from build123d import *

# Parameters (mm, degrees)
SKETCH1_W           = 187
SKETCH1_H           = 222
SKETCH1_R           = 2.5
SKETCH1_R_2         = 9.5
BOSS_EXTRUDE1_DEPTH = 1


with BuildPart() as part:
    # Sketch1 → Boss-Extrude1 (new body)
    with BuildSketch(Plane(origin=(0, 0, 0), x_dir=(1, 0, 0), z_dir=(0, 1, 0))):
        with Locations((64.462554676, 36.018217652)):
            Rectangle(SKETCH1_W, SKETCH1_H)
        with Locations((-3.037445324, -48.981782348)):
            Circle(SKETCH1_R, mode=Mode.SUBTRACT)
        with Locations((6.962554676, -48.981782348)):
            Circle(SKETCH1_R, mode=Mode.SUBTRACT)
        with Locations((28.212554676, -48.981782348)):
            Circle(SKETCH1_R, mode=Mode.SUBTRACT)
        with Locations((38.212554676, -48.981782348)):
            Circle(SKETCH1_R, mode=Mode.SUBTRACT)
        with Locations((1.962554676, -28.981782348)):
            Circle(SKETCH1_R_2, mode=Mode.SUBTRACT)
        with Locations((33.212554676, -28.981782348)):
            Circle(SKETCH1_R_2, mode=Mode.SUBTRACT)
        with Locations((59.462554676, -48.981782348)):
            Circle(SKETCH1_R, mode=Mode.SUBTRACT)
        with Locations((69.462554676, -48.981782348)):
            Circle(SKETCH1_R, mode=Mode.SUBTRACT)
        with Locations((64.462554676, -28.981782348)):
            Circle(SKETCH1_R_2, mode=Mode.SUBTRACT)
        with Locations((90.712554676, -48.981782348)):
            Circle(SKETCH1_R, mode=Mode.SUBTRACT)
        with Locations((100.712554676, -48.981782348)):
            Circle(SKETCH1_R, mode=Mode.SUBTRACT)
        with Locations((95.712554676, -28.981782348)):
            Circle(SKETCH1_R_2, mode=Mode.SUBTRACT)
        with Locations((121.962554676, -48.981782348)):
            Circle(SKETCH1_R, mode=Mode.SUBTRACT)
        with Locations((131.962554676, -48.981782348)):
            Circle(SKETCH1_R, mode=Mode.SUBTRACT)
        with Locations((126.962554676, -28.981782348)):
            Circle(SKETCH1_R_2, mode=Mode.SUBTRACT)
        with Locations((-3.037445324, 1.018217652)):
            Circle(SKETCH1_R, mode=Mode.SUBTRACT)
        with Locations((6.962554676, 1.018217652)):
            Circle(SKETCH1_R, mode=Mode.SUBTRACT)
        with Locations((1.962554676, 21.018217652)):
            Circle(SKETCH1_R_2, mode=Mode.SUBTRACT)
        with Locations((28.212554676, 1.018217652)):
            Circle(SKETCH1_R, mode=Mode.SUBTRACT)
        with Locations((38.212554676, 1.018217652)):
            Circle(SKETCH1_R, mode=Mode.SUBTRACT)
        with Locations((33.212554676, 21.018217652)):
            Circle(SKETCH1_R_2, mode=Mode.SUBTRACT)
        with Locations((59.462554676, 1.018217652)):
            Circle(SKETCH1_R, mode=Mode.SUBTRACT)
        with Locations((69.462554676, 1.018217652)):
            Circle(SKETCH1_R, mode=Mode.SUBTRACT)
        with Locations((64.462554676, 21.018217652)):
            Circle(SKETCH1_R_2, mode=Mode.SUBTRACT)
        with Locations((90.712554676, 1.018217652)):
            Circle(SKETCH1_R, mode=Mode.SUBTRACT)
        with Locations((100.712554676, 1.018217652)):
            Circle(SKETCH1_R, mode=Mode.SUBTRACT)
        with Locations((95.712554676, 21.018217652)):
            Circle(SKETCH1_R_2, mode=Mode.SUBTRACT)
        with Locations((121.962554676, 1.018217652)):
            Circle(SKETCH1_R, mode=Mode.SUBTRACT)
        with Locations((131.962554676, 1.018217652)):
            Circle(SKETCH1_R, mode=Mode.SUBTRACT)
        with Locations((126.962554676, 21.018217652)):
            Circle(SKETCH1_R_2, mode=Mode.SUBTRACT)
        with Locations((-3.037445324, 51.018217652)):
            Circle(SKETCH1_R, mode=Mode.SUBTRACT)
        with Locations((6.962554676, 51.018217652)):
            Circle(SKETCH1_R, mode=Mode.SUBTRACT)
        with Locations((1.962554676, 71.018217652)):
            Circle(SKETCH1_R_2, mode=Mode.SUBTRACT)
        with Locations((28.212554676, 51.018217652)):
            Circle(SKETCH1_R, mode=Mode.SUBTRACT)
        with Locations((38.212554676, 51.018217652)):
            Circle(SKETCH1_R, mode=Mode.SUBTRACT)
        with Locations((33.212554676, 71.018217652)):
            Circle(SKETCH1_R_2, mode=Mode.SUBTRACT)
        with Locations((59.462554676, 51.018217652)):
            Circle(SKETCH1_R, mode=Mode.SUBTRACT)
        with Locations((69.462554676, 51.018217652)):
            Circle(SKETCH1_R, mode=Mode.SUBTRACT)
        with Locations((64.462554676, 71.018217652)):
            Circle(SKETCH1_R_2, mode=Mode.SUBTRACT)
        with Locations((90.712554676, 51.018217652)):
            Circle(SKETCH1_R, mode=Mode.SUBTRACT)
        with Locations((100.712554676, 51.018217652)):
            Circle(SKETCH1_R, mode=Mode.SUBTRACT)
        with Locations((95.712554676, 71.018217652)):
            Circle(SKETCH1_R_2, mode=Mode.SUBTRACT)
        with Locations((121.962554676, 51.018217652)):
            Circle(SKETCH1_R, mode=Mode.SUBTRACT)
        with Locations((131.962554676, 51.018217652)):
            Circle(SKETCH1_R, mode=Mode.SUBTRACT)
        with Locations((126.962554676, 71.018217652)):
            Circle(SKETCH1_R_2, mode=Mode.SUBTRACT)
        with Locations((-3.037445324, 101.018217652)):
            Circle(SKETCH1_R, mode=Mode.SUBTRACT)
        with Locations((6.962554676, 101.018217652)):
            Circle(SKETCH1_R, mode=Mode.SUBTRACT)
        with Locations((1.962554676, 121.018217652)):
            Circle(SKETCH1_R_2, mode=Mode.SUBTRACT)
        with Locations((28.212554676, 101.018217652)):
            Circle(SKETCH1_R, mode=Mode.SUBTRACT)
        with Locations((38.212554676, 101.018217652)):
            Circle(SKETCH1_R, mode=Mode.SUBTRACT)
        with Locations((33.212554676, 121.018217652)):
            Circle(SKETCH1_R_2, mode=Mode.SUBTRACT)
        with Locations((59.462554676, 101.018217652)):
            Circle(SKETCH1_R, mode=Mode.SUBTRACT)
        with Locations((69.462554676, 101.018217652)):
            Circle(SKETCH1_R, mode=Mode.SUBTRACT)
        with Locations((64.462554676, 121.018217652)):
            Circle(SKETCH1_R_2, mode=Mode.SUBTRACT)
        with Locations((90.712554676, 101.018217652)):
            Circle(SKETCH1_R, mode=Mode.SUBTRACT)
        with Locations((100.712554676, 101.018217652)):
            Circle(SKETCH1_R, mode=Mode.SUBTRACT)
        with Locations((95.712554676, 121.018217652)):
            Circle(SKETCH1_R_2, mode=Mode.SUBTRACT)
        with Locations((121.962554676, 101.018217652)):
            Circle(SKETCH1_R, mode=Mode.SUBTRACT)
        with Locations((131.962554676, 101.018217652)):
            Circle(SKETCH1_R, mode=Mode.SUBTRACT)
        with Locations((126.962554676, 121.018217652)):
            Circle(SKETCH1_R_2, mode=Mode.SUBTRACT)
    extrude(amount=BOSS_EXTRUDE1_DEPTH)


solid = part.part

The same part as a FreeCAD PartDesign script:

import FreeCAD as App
import Part
import Sketcher

V = App.Vector
Q = App.Units.Quantity

doc = App.newDocument("Part")
params = doc.addObject("Spreadsheet::Sheet", "Params")
for row, (alias, value) in enumerate([
    ("sketch1_diameter", "5 mm"),
    ("sketch1_diameter2", "19 mm"),
    ("sketch1_width", "187 mm"),
    ("sketch1_height", "222 mm"),
    ("pad1_length", "1 mm"),
], start=1):
    params.set(f"A{row}", alias)
    params.set(f"B{row}", "=" + value)
    params.setAlias(f"B{row}", alias)

body = doc.addObject("PartDesign::Body", "Body")

sketch1 = body.newObject("Sketcher::SketchObject", "Sketch")
sketch1.AttachmentSupport = (doc.getObject("XZ_Plane"), [""])
sketch1.MapMode = "FlatFace"
sketch1.addGeometry([
    Part.LineSegment(V(-29.037445, -147.018218, 0), V(-29.037445, 74.981782, 0)),
    Part.LineSegment(V(-29.037445, 74.981782, 0), V(157.962555, 74.981782, 0)),
    Part.LineSegment(V(157.962555, 74.981782, 0), V(157.962555, -147.018218, 0)),
    Part.LineSegment(V(157.962555, -147.018218, 0), V(-29.037445, -147.018218, 0)),
    Part.Circle(V(-3.037445, 48.981782, 0), V(0, 0, 1), 2.5),
    Part.Circle(V(6.962555, 48.981782, 0), V(0, 0, 1), 2.5),
    Part.Circle(V(1.962555, 28.981782, 0), V(0, 0, 1), 9.5),
    Part.Circle(V(28.212555, 48.981782, 0), V(0, 0, 1), 2.5),
    Part.Circle(V(38.212555, 48.981782, 0), V(0, 0, 1), 2.5),
    Part.Circle(V(33.212555, 28.981782, 0), V(0, 0, 1), 9.5),
    Part.Circle(V(59.462555, 48.981782, 0), V(0, 0, 1), 2.5),
    Part.Circle(V(-3.037445, -1.018218, 0), V(0, 0, 1), 2.5),
    Part.Circle(V(6.962555, -1.018218, 0), V(0, 0, 1), 2.5),
    Part.Circle(V(28.212555, -1.018218, 0), V(0, 0, 1), 2.5),
    Part.Circle(V(1.962555, -21.018218, 0), V(0, 0, 1), 9.5),
    Part.Circle(V(38.212555, -1.018218, 0), V(0, 0, 1), 2.5),
    Part.Circle(V(59.462555, -1.018218, 0), V(0, 0, 1), 2.5),
    Part.Circle(V(33.212555, -21.018218, 0), V(0, 0, 1), 9.5),
    Part.Circle(V(69.462555, 48.981782, 0), V(0, 0, 1), 2.5),
    Part.Circle(V(64.462555, 28.981782, 0), V(0, 0, 1), 9.5),
    Part.Circle(V(90.712555, 48.981782, 0), V(0, 0, 1), 2.5),
    Part.Circle(V(95.712555, 28.981782, 0), V(0, 0, 1), 9.5),
    Part.Circle(V(100.712555, 48.981782, 0), V(0, 0, 1), 2.5),
    Part.Circle(V(121.962555, 48.981782, 0), V(0, 0, 1), 2.5),
    Part.Circle(V(131.962555, 48.981782, 0), V(0, 0, 1), 2.5),
    Part.Circle(V(126.962555, 28.981782, 0), V(0, 0, 1), 9.5),
    Part.Circle(V(69.462555, -1.018218, 0), V(0, 0, 1), 2.5),
    Part.Circle(V(90.712555, -1.018218, 0), V(0, 0, 1), 2.5),
    Part.Circle(V(64.462555, -21.018218, 0), V(0, 0, 1), 9.5),
    Part.Circle(V(95.712555, -21.018218, 0), V(0, 0, 1), 9.5),
    Part.Circle(V(100.712555, -1.018218, 0), V(0, 0, 1), 2.5),
    Part.Circle(V(121.962555, -1.018218, 0), V(0, 0, 1), 2.5),
    Part.Circle(V(131.962555, -1.018218, 0), V(0, 0, 1), 2.5),
    Part.Circle(V(126.962555, -21.018218, 0), V(0, 0, 1), 9.5),
    Part.Circle(V(-3.037445, -51.018218, 0), V(0, 0, 1), 2.5),
    Part.Circle(V(6.962555, -51.018218, 0), V(0, 0, 1), 2.5),
    Part.Circle(V(28.212555, -51.018218, 0), V(0, 0, 1), 2.5),
    Part.Circle(V(1.962555, -71.018218, 0), V(0, 0, 1), 9.5),
    Part.Circle(V(38.212555, -51.018218, 0), V(0, 0, 1), 2.5),
    Part.Circle(V(59.462555, -51.018218, 0), V(0, 0, 1), 2.5),
    Part.Circle(V(33.212555, -71.018218, 0), V(0, 0, 1), 9.5),
    Part.Circle(V(-3.037445, -101.018218, 0), V(0, 0, 1), 2.5),
    Part.Circle(V(6.962555, -101.018218, 0), V(0, 0, 1), 2.5),
    Part.Circle(V(28.212555, -101.018218, 0), V(0, 0, 1), 2.5),
    Part.Circle(V(1.962555, -121.018218, 0), V(0, 0, 1), 9.5),
    Part.Circle(V(38.212555, -101.018218, 0), V(0, 0, 1), 2.5),
    Part.Circle(V(59.462555, -101.018218, 0), V(0, 0, 1), 2.5),
    Part.Circle(V(33.212555, -121.018218, 0), V(0, 0, 1), 9.5),
    Part.Circle(V(69.462555, -51.018218, 0), V(0, 0, 1), 2.5),
    Part.Circle(V(90.712555, -51.018218, 0), V(0, 0, 1), 2.5),
    Part.Circle(V(64.462555, -71.018218, 0), V(0, 0, 1), 9.5),
    Part.Circle(V(95.712555, -71.018218, 0), V(0, 0, 1), 9.5),
    Part.Circle(V(100.712555, -51.018218, 0), V(0, 0, 1), 2.5),
    Part.Circle(V(121.962555, -51.018218, 0), V(0, 0, 1), 2.5),
    Part.Circle(V(131.962555, -51.018218, 0), V(0, 0, 1), 2.5),
    Part.Circle(V(126.962555, -71.018218, 0), V(0, 0, 1), 9.5),
    Part.Circle(V(69.462555, -101.018218, 0), V(0, 0, 1), 2.5),
    Part.Circle(V(90.712555, -101.018218, 0), V(0, 0, 1), 2.5),
    Part.Circle(V(64.462555, -121.018218, 0), V(0, 0, 1), 9.5),
    Part.Circle(V(95.712555, -121.018218, 0), V(0, 0, 1), 9.5),
    Part.Circle(V(100.712555, -101.018218, 0), V(0, 0, 1), 2.5),
    Part.Circle(V(121.962555, -101.018218, 0), V(0, 0, 1), 2.5),
    Part.Circle(V(131.962555, -101.018218, 0), V(0, 0, 1), 2.5),
    Part.Circle(V(126.962555, -121.018218, 0), V(0, 0, 1), 9.5),
], False)
sketch1.addConstraint([
    Sketcher.Constraint("Coincident", 0, 2, 1, 1),
    Sketcher.Constraint("Coincident", 1, 2, 2, 1),
    Sketcher.Constraint("Coincident", 2, 2, 3, 1),
    Sketcher.Constraint("Coincident", 3, 2, 0, 1),
    Sketcher.Constraint("Vertical", 0),
    Sketcher.Constraint("Horizontal", 1),
    Sketcher.Constraint("Vertical", 2),
    Sketcher.Constraint("Horizontal", 3),
    Sketcher.Constraint("Equal", 4, 5),
    Sketcher.Constraint("Equal", 5, 7),
    Sketcher.Constraint("Equal", 7, 8),
    Sketcher.Constraint("Equal", 6, 9),
    Sketcher.Constraint("Equal", 8, 10),
    Sketcher.Constraint("Equal", 10, 11),
    Sketcher.Constraint("Equal", 11, 12),
    Sketcher.Constraint("Equal", 12, 13),
    Sketcher.Constraint("Equal", 9, 14),
    Sketcher.Constraint("Equal", 13, 15),
    Sketcher.Constraint("Equal", 15, 16),
    Sketcher.Constraint("Equal", 14, 17),
    Sketcher.Constraint("Equal", 16, 18),
    Sketcher.Constraint("Equal", 17, 19),
    Sketcher.Constraint("Equal", 18, 20),
    Sketcher.Constraint("Equal", 19, 21),
    Sketcher.Constraint("Equal", 20, 22),
    Sketcher.Constraint("Equal", 22, 23),
    Sketcher.Constraint("Equal", 23, 24),
    Sketcher.Constraint("Equal", 21, 25),
    Sketcher.Constraint("Equal", 24, 26),
    Sketcher.Constraint("Equal", 26, 27),
    Sketcher.Constraint("Equal", 25, 28),
    Sketcher.Constraint("Equal", 28, 29),
    Sketcher.Constraint("Equal", 27, 30),
    Sketcher.Constraint("Equal", 30, 31),
    Sketcher.Constraint("Equal", 31, 32),
    Sketcher.Constraint("Equal", 29, 33),
    Sketcher.Constraint("Equal", 32, 34),
    Sketcher.Constraint("Equal", 34, 35),
    Sketcher.Constraint("Equal", 35, 36),
    Sketcher.Constraint("Equal", 33, 37),
    Sketcher.Constraint("Equal", 36, 38),
    Sketcher.Constraint("Equal", 38, 39),
    Sketcher.Constraint("Equal", 37, 40),
    Sketcher.Constraint("Equal", 39, 41),
    Sketcher.Constraint("Equal", 41, 42),
    Sketcher.Constraint("Equal", 42, 43),
    Sketcher.Constraint("Equal", 40, 44),
    Sketcher.Constraint("Equal", 43, 45),
    Sketcher.Constraint("Equal", 45, 46),
    Sketcher.Constraint("Equal", 44, 47),
    Sketcher.Constraint("Equal", 46, 48),
    Sketcher.Constraint("Equal", 48, 49),
    Sketcher.Constraint("Equal", 47, 50),
    Sketcher.Constraint("Equal", 50, 51),
    Sketcher.Constraint("Equal", 49, 52),
    Sketcher.Constraint("Equal", 52, 53),
    Sketcher.Constraint("Equal", 53, 54),
    Sketcher.Constraint("Equal", 51, 55),
    Sketcher.Constraint("Equal", 54, 56),
    Sketcher.Constraint("Equal", 56, 57),
    Sketcher.Constraint("Equal", 55, 58),
    Sketcher.Constraint("Equal", 58, 59),
    Sketcher.Constraint("Equal", 57, 60),
    Sketcher.Constraint("Equal", 60, 61),
    Sketcher.Constraint("Equal", 61, 62),
    Sketcher.Constraint("Equal", 59, 63),
    Sketcher.Constraint("Horizontal", 4, 3, 5, 3),
    Sketcher.Constraint("Horizontal", 5, 3, 7, 3),
    Sketcher.Constraint("Horizontal", 7, 3, 8, 3),
    Sketcher.Constraint("Horizontal", 6, 3, 9, 3),
    Sketcher.Constraint("Horizontal", 8, 3, 10, 3),
    Sketcher.Constraint("Horizontal", 11, 3, 12, 3),
    Sketcher.Constraint("Horizontal", 12, 3, 13, 3),
    Sketcher.Constraint("Horizontal", 13, 3, 15, 3),
    Sketcher.Constraint("Horizontal", 15, 3, 16, 3),
    Sketcher.Constraint("Horizontal", 14, 3, 17, 3),
    Sketcher.Constraint("Horizontal", 10, 3, 18, 3),
    Sketcher.Constraint("Horizontal", 9, 3, 19, 3),
    Sketcher.Constraint("Horizontal", 18, 3, 20, 3),
    Sketcher.Constraint("Horizontal", 19, 3, 21, 3),
    Sketcher.Constraint("Horizontal", 20, 3, 22, 3),
    Sketcher.Constraint("Horizontal", 22, 3, 23, 3),
    Sketcher.Constraint("Horizontal", 23, 3, 24, 3),
    Sketcher.Constraint("Horizontal", 21, 3, 25, 3),
    Sketcher.Constraint("Horizontal", 16, 3, 26, 3),
    Sketcher.Constraint("Horizontal", 26, 3, 27, 3),
    Sketcher.Constraint("Horizontal", 17, 3, 28, 3),
    Sketcher.Constraint("Horizontal", 28, 3, 29, 3),
    Sketcher.Constraint("Horizontal", 27, 3, 30, 3),
    Sketcher.Constraint("Horizontal", 30, 3, 31, 3),
    Sketcher.Constraint("Horizontal", 31, 3, 32, 3),
    Sketcher.Constraint("Horizontal", 29, 3, 33, 3),
    Sketcher.Constraint("Horizontal", 34, 3, 35, 3),
    Sketcher.Constraint("Horizontal", 35, 3, 36, 3),
    Sketcher.Constraint("Horizontal", 36, 3, 38, 3),
    Sketcher.Constraint("Horizontal", 38, 3, 39, 3),
    Sketcher.Constraint("Horizontal", 37, 3, 40, 3),
    Sketcher.Constraint("Horizontal", 41, 3, 42, 3),
    Sketcher.Constraint("Horizontal", 42, 3, 43, 3),
    Sketcher.Constraint("Horizontal", 43, 3, 45, 3),
    Sketcher.Constraint("Horizontal", 45, 3, 46, 3),
    Sketcher.Constraint("Horizontal", 44, 3, 47, 3),
    Sketcher.Constraint("Horizontal", 39, 3, 48, 3),
    Sketcher.Constraint("Horizontal", 48, 3, 49, 3),
    Sketcher.Constraint("Horizontal", 40, 3, 50, 3),
    Sketcher.Constraint("Horizontal", 50, 3, 51, 3),
    Sketcher.Constraint("Horizontal", 49, 3, 52, 3),
    Sketcher.Constraint("Horizontal", 52, 3, 53, 3),
    Sketcher.Constraint("Horizontal", 53, 3, 54, 3),
    Sketcher.Constraint("Horizontal", 51, 3, 55, 3),
    Sketcher.Constraint("Horizontal", 46, 3, 56, 3),
    Sketcher.Constraint("Horizontal", 56, 3, 57, 3),
    Sketcher.Constraint("Horizontal", 47, 3, 58, 3),
    Sketcher.Constraint("Horizontal", 58, 3, 59, 3),
    Sketcher.Constraint("Horizontal", 57, 3, 60, 3),
    Sketcher.Constraint("Horizontal", 60, 3, 61, 3),
    Sketcher.Constraint("Horizontal", 61, 3, 62, 3),
    Sketcher.Constraint("Horizontal", 59, 3, 63, 3),
    Sketcher.Constraint("Vertical", 4, 3, 11, 3),
    Sketcher.Constraint("Vertical", 5, 3, 12, 3),
    Sketcher.Constraint("Vertical", 7, 3, 13, 3),
    Sketcher.Constraint("Vertical", 6, 3, 14, 3),
    Sketcher.Constraint("Vertical", 8, 3, 15, 3),
    Sketcher.Constraint("Vertical", 10, 3, 16, 3),
    Sketcher.Constraint("Vertical", 9, 3, 17, 3),
    Sketcher.Constraint("Vertical", 18, 3, 26, 3),
    Sketcher.Constraint("Vertical", 20, 3, 27, 3),
    Sketcher.Constraint("Vertical", 19, 3, 28, 3),
    Sketcher.Constraint("Vertical", 21, 3, 29, 3),
    Sketcher.Constraint("Vertical", 22, 3, 30, 3),
    Sketcher.Constraint("Vertical", 23, 3, 31, 3),
    Sketcher.Constraint("Vertical", 24, 3, 32, 3),
    Sketcher.Constraint("Vertical", 25, 3, 33, 3),
    Sketcher.Constraint("Vertical", 11, 3, 34, 3),
    Sketcher.Constraint("Vertical", 12, 3, 35, 3),
    Sketcher.Constraint("Vertical", 13, 3, 36, 3),
    Sketcher.Constraint("Vertical", 14, 3, 37, 3),
    Sketcher.Constraint("Vertical", 15, 3, 38, 3),
    Sketcher.Constraint("Vertical", 16, 3, 39, 3),
    Sketcher.Constraint("Vertical", 17, 3, 40, 3),
    Sketcher.Constraint("Vertical", 34, 3, 41, 3),
    Sketcher.Constraint("Vertical", 35, 3, 42, 3),
    Sketcher.Constraint("Vertical", 36, 3, 43, 3),
    Sketcher.Constraint("Vertical", 37, 3, 44, 3),
    Sketcher.Constraint("Vertical", 38, 3, 45, 3),
    Sketcher.Constraint("Vertical", 39, 3, 46, 3),
    Sketcher.Constraint("Vertical", 40, 3, 47, 3),
    Sketcher.Constraint("Vertical", 26, 3, 48, 3),
    Sketcher.Constraint("Vertical", 27, 3, 49, 3),
    Sketcher.Constraint("Vertical", 28, 3, 50, 3),
    Sketcher.Constraint("Vertical", 29, 3, 51, 3),
    Sketcher.Constraint("Vertical", 30, 3, 52, 3),
    Sketcher.Constraint("Vertical", 31, 3, 53, 3),
    Sketcher.Constraint("Vertical", 32, 3, 54, 3),
    Sketcher.Constraint("Vertical", 33, 3, 55, 3),
    Sketcher.Constraint("Vertical", 48, 3, 56, 3),
    Sketcher.Constraint("Vertical", 49, 3, 57, 3),
    Sketcher.Constraint("Vertical", 50, 3, 58, 3),
    Sketcher.Constraint("Vertical", 51, 3, 59, 3),
    Sketcher.Constraint("Vertical", 52, 3, 60, 3),
    Sketcher.Constraint("Vertical", 53, 3, 61, 3),
    Sketcher.Constraint("Vertical", 54, 3, 62, 3),
    Sketcher.Constraint("Vertical", 55, 3, 63, 3),
    Sketcher.Constraint("Diameter", 4, Q("5 mm")),
    Sketcher.Constraint("Diameter", 6, Q("19 mm")),
    Sketcher.Constraint("DistanceX", 1, 1, 1, 2, Q("187 mm")),
    Sketcher.Constraint("DistanceY", 0, 1, 0, 2, Q("222 mm")),
    Sketcher.Constraint("DistanceX", 4, 3, -1, 1, Q("3.037445 mm")),
    Sketcher.Constraint("DistanceY", -1, 1, 4, 3, Q("48.981782 mm")),
    Sketcher.Constraint("DistanceX", -1, 1, 5, 3, Q("6.962555 mm")),
    Sketcher.Constraint("DistanceX", -1, 1, 6, 3, Q("1.962555 mm")),
    Sketcher.Constraint("DistanceY", -1, 1, 6, 3, Q("28.981782 mm")),
    Sketcher.Constraint("DistanceX", -1, 1, 7, 3, Q("28.212555 mm")),
    Sketcher.Constraint("DistanceX", -1, 1, 8, 3, Q("38.212555 mm")),
    Sketcher.Constraint("DistanceX", -1, 1, 9, 3, Q("33.212555 mm")),
    Sketcher.Constraint("DistanceX", -1, 1, 10, 3, Q("59.462555 mm")),
    Sketcher.Constraint("DistanceY", 11, 3, -1, 1, Q("1.018218 mm")),
    Sketcher.Constraint("DistanceY", 14, 3, -1, 1, Q("21.018218 mm")),
    Sketcher.Constraint("DistanceX", -1, 1, 18, 3, Q("69.462555 mm")),
    Sketcher.Constraint("DistanceX", -1, 1, 19, 3, Q("64.462555 mm")),
    Sketcher.Constraint("DistanceX", -1, 1, 20, 3, Q("90.712555 mm")),
    Sketcher.Constraint("DistanceX", -1, 1, 21, 3, Q("95.712555 mm")),
    Sketcher.Constraint("DistanceX", -1, 1, 22, 3, Q("100.712555 mm")),
    Sketcher.Constraint("DistanceX", -1, 1, 23, 3, Q("121.962555 mm")),
    Sketcher.Constraint("DistanceX", -1, 1, 24, 3, Q("131.962555 mm")),
    Sketcher.Constraint("DistanceX", -1, 1, 25, 3, Q("126.962555 mm")),
    Sketcher.Constraint("DistanceY", 34, 3, -1, 1, Q("51.018218 mm")),
    Sketcher.Constraint("DistanceY", 37, 3, -1, 1, Q("71.018218 mm")),
    Sketcher.Constraint("DistanceY", 41, 3, -1, 1, Q("101.018218 mm")),
    Sketcher.Constraint("DistanceY", 44, 3, -1, 1, Q("121.018218 mm")),
    Sketcher.Constraint("DistanceX", 0, 2, -1, 1, Q("29.037445 mm")),
    Sketcher.Constraint("DistanceY", -1, 1, 0, 2, Q("74.981782 mm")),
])
sketch1.setExpression("Constraints[163]", "Params.sketch1_diameter")
sketch1.setExpression("Constraints[164]", "Params.sketch1_diameter2")
sketch1.setExpression("Constraints[165]", "Params.sketch1_width")
sketch1.setExpression("Constraints[166]", "Params.sketch1_height")
pad1 = body.newObject("PartDesign::Pad", "Pad")
pad1.Profile = sketch1
pad1.setExpression("Length", "Params.pad1_length")
pad1.Reversed = True

doc.recompute()
